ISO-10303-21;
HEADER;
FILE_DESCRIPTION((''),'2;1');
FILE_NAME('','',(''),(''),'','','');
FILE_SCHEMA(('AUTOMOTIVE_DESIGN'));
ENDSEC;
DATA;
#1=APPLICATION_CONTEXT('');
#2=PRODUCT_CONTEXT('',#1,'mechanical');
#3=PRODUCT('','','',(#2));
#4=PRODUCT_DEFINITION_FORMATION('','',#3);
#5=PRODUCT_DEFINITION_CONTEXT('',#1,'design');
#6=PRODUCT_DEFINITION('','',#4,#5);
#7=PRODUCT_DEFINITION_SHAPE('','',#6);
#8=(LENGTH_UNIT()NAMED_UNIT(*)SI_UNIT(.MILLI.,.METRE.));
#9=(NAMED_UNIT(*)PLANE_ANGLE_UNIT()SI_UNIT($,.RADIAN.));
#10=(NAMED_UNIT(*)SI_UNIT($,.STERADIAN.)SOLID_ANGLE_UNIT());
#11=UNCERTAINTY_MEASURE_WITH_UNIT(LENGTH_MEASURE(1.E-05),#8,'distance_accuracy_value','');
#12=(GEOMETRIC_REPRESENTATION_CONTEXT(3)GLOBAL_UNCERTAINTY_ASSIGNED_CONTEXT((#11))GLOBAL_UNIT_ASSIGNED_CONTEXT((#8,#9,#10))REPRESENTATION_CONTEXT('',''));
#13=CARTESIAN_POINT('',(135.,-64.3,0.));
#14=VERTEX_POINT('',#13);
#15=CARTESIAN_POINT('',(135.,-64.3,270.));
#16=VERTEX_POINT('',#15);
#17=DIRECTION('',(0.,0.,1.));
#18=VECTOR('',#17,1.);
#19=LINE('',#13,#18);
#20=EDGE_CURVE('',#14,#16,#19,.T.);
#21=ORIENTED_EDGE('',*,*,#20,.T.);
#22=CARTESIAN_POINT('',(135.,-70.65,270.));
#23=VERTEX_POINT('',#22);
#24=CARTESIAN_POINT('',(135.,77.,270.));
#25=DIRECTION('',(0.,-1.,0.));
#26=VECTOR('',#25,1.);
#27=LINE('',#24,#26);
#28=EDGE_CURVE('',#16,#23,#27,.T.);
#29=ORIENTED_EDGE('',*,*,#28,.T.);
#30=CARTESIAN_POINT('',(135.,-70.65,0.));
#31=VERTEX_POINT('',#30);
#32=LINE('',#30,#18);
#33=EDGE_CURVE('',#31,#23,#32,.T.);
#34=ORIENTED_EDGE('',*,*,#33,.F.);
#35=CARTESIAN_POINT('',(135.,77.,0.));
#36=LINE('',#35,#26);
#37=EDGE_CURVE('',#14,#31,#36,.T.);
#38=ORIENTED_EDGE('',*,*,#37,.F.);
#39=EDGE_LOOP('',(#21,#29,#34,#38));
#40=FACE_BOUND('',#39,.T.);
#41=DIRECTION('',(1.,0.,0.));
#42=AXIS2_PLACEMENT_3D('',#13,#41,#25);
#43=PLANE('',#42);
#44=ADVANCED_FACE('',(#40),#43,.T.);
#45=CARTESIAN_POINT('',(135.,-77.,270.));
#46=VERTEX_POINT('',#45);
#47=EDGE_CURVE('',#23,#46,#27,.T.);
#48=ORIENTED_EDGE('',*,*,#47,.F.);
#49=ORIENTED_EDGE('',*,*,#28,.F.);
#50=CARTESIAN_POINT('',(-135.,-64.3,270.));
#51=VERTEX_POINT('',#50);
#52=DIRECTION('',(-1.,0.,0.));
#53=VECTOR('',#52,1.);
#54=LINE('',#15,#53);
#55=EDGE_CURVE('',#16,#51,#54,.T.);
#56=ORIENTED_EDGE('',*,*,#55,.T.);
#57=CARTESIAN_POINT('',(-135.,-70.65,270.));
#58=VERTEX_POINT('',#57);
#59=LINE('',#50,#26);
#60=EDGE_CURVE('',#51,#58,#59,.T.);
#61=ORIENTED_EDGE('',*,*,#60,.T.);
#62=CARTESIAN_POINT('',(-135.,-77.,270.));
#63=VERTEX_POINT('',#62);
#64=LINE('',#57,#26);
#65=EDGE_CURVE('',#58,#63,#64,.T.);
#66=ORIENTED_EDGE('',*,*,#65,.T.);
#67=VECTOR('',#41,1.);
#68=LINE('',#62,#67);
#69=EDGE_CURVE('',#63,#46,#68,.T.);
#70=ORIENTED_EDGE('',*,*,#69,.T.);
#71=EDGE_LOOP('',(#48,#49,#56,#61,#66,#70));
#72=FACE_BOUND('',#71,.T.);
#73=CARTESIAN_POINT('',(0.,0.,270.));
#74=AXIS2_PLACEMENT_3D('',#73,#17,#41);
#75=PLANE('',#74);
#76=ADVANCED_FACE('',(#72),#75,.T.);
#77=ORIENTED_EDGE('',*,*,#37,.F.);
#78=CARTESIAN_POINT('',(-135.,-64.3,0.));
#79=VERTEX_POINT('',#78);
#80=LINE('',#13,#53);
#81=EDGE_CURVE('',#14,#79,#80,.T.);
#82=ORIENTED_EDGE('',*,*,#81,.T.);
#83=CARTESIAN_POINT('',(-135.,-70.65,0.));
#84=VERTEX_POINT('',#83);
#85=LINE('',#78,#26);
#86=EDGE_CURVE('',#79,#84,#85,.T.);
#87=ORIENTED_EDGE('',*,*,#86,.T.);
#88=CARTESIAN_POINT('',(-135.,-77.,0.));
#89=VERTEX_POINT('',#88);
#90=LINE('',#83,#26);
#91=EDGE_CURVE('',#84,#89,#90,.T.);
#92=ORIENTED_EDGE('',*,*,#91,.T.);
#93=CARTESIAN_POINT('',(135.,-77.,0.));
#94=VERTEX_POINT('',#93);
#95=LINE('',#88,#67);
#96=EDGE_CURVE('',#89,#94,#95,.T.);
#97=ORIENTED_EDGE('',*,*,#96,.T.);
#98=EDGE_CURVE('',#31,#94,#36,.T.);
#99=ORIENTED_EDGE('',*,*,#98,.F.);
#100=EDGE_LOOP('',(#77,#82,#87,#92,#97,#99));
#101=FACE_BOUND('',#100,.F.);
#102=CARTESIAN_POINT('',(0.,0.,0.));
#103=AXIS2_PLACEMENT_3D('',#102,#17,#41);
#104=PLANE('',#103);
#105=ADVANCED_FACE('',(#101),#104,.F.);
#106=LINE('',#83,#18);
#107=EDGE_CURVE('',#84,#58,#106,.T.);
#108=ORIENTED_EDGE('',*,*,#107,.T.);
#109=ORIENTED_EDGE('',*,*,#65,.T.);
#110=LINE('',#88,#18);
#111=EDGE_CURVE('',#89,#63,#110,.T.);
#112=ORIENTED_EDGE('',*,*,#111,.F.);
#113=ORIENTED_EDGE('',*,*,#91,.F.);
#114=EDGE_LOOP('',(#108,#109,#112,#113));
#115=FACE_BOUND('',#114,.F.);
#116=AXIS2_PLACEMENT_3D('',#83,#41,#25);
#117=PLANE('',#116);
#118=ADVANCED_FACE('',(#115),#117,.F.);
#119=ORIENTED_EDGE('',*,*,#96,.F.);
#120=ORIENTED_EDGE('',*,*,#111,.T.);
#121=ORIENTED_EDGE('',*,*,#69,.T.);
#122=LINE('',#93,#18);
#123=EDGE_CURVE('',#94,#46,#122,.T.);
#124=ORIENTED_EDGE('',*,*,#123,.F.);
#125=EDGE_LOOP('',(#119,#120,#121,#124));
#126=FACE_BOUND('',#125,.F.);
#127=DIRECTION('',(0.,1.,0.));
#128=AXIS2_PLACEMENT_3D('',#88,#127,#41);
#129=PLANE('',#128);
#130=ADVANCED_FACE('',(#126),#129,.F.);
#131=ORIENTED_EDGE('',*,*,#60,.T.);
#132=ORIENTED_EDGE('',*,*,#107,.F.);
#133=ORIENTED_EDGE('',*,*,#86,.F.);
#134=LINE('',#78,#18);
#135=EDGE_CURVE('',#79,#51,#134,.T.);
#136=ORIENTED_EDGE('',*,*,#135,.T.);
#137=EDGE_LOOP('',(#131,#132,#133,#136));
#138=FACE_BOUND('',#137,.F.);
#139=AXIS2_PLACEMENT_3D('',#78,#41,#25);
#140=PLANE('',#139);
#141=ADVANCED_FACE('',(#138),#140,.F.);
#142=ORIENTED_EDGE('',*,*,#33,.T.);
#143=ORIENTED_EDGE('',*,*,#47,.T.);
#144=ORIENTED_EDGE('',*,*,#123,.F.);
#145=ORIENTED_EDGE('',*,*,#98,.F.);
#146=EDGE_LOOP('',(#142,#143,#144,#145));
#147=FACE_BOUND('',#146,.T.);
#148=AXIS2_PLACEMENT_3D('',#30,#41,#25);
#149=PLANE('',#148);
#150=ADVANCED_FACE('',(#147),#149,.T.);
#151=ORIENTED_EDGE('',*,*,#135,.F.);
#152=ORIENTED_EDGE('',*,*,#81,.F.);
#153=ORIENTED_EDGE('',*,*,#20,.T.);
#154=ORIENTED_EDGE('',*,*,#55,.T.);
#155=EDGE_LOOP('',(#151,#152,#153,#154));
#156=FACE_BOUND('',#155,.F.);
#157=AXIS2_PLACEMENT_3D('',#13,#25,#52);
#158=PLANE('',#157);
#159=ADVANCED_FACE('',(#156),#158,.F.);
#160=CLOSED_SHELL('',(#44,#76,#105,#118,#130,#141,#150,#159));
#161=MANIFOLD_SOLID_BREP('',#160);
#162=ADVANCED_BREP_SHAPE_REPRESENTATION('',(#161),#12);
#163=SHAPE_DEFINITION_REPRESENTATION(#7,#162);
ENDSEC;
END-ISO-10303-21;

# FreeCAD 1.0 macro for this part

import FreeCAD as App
import Part
import Sketcher

V = App.Vector
Q = App.Units.Quantity

doc = App.newDocument("Part")
body = doc.addObject("PartDesign::Body", "Body")

sketch1 = body.newObject("Sketcher::SketchObject", "Sketch")
sketch1.AttachmentSupport = (doc.getObject("XY_Plane"), [""])
sketch1.MapMode = "FlatFace"
sketch1.addGeometry(Part.LineSegment(V(135, -77, 0), V(135, -64.3, 0)), False)
sketch1.addGeometry(Part.LineSegment(V(135, -64.3, 0), V(-135, -64.3, 0)), False)
sketch1.addGeometry(Part.LineSegment(V(-135, -64.3, 0), V(-135, -77, 0)), False)
sketch1.addGeometry(Part.LineSegment(V(-135, -77, 0), V(135, -77, 0)), False)
sketch1.addConstraint(Sketcher.Constraint("Coincident", 0, 2, 1, 1))
sketch1.addConstraint(Sketcher.Constraint("Coincident", 1, 2, 2, 1))
sketch1.addConstraint(Sketcher.Constraint("Coincident", 2, 2, 3, 1))
sketch1.addConstraint(Sketcher.Constraint("Coincident", 3, 2, 0, 1))
sketch1.addConstraint(Sketcher.Constraint("Vertical", 0))
sketch1.addConstraint(Sketcher.Constraint("Horizontal", 1))
sketch1.addConstraint(Sketcher.Constraint("Vertical", 2))
sketch1.addConstraint(Sketcher.Constraint("Horizontal", 3))
sketch1.addConstraint(Sketcher.Constraint("DistanceX", 1, 2, 1, 1, Q("270 mm")))
sketch1.addConstraint(Sketcher.Constraint("DistanceY", 0, 1, 0, 2, Q("12.7 mm")))
sketch1.addConstraint(Sketcher.Constraint("DistanceX", -1, 1, 0, 2, Q("135 mm")))
sketch1.addConstraint(Sketcher.Constraint("DistanceY", 2, 2, -1, 1, Q("77 mm")))
pad1 = body.newObject("PartDesign::Pad", "Pad")
pad1.Profile = sketch1
pad1.Length = 270

doc.recompute()
